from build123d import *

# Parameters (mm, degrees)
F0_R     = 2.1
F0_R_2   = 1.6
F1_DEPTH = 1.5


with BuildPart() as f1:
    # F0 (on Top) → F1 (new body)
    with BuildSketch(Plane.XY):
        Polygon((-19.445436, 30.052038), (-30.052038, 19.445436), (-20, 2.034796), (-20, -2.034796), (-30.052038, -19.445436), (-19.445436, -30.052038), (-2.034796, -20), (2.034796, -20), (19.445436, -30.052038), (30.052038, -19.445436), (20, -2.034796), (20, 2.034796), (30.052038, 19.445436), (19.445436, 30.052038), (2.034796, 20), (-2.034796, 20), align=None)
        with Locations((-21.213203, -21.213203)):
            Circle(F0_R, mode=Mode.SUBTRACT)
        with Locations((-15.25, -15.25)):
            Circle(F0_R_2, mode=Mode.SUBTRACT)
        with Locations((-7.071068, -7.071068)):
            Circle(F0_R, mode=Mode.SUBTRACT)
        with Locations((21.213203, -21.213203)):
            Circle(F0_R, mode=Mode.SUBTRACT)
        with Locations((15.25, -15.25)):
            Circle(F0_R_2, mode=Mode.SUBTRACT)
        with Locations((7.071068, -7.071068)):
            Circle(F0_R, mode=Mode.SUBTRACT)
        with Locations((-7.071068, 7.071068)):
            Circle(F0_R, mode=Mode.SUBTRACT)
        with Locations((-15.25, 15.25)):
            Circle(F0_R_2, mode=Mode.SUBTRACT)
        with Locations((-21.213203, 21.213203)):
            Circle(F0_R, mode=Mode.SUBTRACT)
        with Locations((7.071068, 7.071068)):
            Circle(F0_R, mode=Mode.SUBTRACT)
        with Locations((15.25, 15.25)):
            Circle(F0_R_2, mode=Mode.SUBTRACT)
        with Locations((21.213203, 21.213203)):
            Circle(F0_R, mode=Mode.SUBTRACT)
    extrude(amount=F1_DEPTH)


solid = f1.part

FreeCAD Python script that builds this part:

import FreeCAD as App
import Part
import Sketcher
from FreeCAD import Vector
Q = App.Units.Quantity


def add_polygon(sketch, points):
    """Adds a closed chain of lines whose ends are joined by coincident constraints."""
    first, n = sketch.GeometryCount, len(points)
    for a, b in zip(points, points[1:] + points[:1]):
        sketch.addGeometry(Part.LineSegment(App.Vector(*a, 0), App.Vector(*b, 0)), False)
    for i in range(n):
        sketch.addConstraint(Sketcher.Constraint("Coincident", first + i, 2, first + (i + 1) % n, 1))

doc = App.newDocument("Part")
body = doc.addObject("PartDesign::Body", "Body")

sketch1 = body.newObject("Sketcher::SketchObject", "Sketch")
sketch1.AttachmentSupport = (doc.getObject("XY_Plane"), [""])
sketch1.MapMode = "FlatFace"
add_polygon(sketch1, [(-19.4, 30.1), (-30.1, 19.4), (-20, 2), (-20, -2), (-30.1, -19.4), (-19.4, -30.1), (-2, -20), (2, -20), (19.4, -30.1), (30.1, -19.4), (20, -2), (20, 2), (30.1, 19.4), (19.4, 30.1), (2, 20), (-2, 20)])
sketch1.addGeometry(Part.Circle(Vector(-21.2, -21.2, 0), Vector(0, 0, 1), 2.1), False)
sketch1.addGeometry(Part.Circle(Vector(-15.2, -15.2, 0), Vector(0, 0, 1), 1.6), False)
sketch1.addGeometry(Part.Circle(Vector(-7.1, -7.1, 0), Vector(0, 0, 1), 2.1), False)
sketch1.addGeometry(Part.Circle(Vector(21.2, -21.2, 0), Vector(0, 0, 1), 2.1), False)
sketch1.addGeometry(Part.Circle(Vector(15.2, -15.2, 0), Vector(0, 0, 1), 1.6), False)
sketch1.addGeometry(Part.Circle(Vector(7.1, -7.1, 0), Vector(0, 0, 1), 2.1), False)
sketch1.addGeometry(Part.Circle(Vector(-7.1, 7.1, 0), Vector(0, 0, 1), 2.1), False)
sketch1.addGeometry(Part.Circle(Vector(-15.2, 15.2, 0), Vector(0, 0, 1), 1.6), False)
sketch1.addGeometry(Part.Circle(Vector(-21.2, 21.2, 0), Vector(0, 0, 1), 2.1), False)
sketch1.addGeometry(Part.Circle(Vector(7.1, 7.1, 0), Vector(0, 0, 1), 2.1), False)
sketch1.addGeometry(Part.Circle(Vector(15.2, 15.2, 0), Vector(0, 0, 1), 1.6), False)
sketch1.addGeometry(Part.Circle(Vector(21.2, 21.2, 0), Vector(0, 0, 1), 2.1), False)
sketch1.addConstraint(Sketcher.Constraint("Vertical", 2))
sketch1.addConstraint(Sketcher.Constraint("Horizontal", 6))
sketch1.addConstraint(Sketcher.Constraint("Vertical", 10))
sketch1.addConstraint(Sketcher.Constraint("Horizontal", 14))
sketch1.addConstraint(Sketcher.Constraint("Equal", 16, 18))
sketch1.addConstraint(Sketcher.Constraint("Equal", 18, 19))
sketch1.addConstraint(Sketcher.Constraint("Equal", 17, 20))
sketch1.addConstraint(Sketcher.Constraint("Equal", 19, 21))
sketch1.addConstraint(Sketcher.Constraint("Equal", 21, 22))
sketch1.addConstraint(Sketcher.Constraint("Equal", 20, 23))
sketch1.addConstraint(Sketcher.Constraint("Equal", 22, 24))
sketch1.addConstraint(Sketcher.Constraint("Equal", 24, 25))
sketch1.addConstraint(Sketcher.Constraint("Equal", 23, 26))
sketch1.addConstraint(Sketcher.Constraint("Equal", 25, 27))
sketch1.addConstraint(Sketcher.Constraint("Symmetric", 21, 3, 22, 3, -1, 1))
sketch1.addConstraint(Sketcher.Constraint("Symmetric", 20, 3, 23, 3, -1, 1))
sketch1.addConstraint(Sketcher.Constraint("Symmetric", 19, 3, 24, 3, -1, 1))
sketch1.addConstraint(Sketcher.Constraint("Symmetric", 18, 3, 25, 3, -1, 1))
sketch1.addConstraint(Sketcher.Constraint("Symmetric", 17, 3, 26, 3, -1, 1))
sketch1.addConstraint(Sketcher.Constraint("Symmetric", 16, 3, 27, 3, -1, 1))
sketch1.addConstraint(Sketcher.Constraint("Symmetric", 0, 2, 8, 2, -1, 1))
sketch1.addConstraint(Sketcher.Constraint("Symmetric", 1, 2, 9, 2, -1, 1))
sketch1.addConstraint(Sketcher.Constraint("Symmetric", 3, 2, 11, 2, -1, 1))
sketch1.addConstraint(Sketcher.Constraint("Symmetric", 4, 2, 12, 2, -1, 1))
sketch1.addConstraint(Sketcher.Constraint("Symmetric", 5, 2, 13, 2, -1, 1))
sketch1.addConstraint(Sketcher.Constraint("Symmetric", 7, 2, 15, 2, -1, 1))
sketch1.addConstraint(Sketcher.Constraint("Symmetric", 16, 3, 19, 3, -2))
sketch1.addConstraint(Sketcher.Constraint("Symmetric", 17, 3, 20, 3, -2))
sketch1.addConstraint(Sketcher.Constraint("Symmetric", 18, 3, 21, 3, -2))
sketch1.addConstraint(Sketcher.Constraint("Symmetric", 4, 2, 7, 2, -2))
sketch1.addConstraint(Sketcher.Constraint("Symmetric", 3, 2, 8, 2, -2))
sketch1.addConstraint(Sketcher.Constraint("Perpendicular", 0, 4))
sketch1.addConstraint(Sketcher.Constraint("Perpendicular", 1, 5))
sketch1.addConstraint(Sketcher.Constraint("Perpendicular", 3, 7))
sketch1.addConstraint(Sketcher.Constraint("Perpendicular", 7, 11))
sketch1.addConstraint(Sketcher.Constraint("Perpendicular", 11, 15))
sketch1.addConstraint(Sketcher.Constraint("Horizontal", 2, 2, 9, 2))
sketch1.addConstraint(Sketcher.Constraint("Equal", 14, 2))
sketch1.addConstraint(Sketcher.Constraint("Equal", 3, 5))
sketch1.addConstraint(Sketcher.Constraint("Diameter", 16, Q("4.2 mm")))
sketch1.addConstraint(Sketcher.Constraint("Diameter", 17, Q("3.2 mm")))
sketch1.addConstraint(Sketcher.Constraint("Angle", 1, Q("-59.999999 deg")))
sketch1.addConstraint(Sketcher.Constraint("Distance", 0, Q("15 mm")))
sketch1.addConstraint(Sketcher.Constraint("DistanceX", 1, 2, -1, 1, Q("20 mm")))
sketch1.addConstraint(Sketcher.Constraint("DistanceX", 17, 3, 20, 3, Q("30.5 mm")))
sketch1.addConstraint(Sketcher.Constraint("DistanceY", 17, 3, 23, 3, Q("30.5 mm")))
sketch1.addConstraint(Sketcher.Constraint("DistanceX", 6, 1, 6, 2, Q("4.069592 mm")))
sketch1.addConstraint(Sketcher.Constraint("DistanceX", 18, 3, -1, 1, Q("7.071068 mm")))
sketch1.addConstraint(Sketcher.Constraint("DistanceY", 18, 3, -1, 1, Q("7.071068 mm")))
sketch1.addConstraint(Sketcher.Constraint("DistanceX", 18, 3, 19, 3, Q("28.284271 mm")))
sketch1.addConstraint(Sketcher.Constraint("DistanceY", 16, 3, 22, 3, Q("28.284271 mm")))
pad1 = body.newObject("PartDesign::Pad", "Pad")
pad1.Profile = sketch1
pad1.Length = 1.5

doc.recompute()
